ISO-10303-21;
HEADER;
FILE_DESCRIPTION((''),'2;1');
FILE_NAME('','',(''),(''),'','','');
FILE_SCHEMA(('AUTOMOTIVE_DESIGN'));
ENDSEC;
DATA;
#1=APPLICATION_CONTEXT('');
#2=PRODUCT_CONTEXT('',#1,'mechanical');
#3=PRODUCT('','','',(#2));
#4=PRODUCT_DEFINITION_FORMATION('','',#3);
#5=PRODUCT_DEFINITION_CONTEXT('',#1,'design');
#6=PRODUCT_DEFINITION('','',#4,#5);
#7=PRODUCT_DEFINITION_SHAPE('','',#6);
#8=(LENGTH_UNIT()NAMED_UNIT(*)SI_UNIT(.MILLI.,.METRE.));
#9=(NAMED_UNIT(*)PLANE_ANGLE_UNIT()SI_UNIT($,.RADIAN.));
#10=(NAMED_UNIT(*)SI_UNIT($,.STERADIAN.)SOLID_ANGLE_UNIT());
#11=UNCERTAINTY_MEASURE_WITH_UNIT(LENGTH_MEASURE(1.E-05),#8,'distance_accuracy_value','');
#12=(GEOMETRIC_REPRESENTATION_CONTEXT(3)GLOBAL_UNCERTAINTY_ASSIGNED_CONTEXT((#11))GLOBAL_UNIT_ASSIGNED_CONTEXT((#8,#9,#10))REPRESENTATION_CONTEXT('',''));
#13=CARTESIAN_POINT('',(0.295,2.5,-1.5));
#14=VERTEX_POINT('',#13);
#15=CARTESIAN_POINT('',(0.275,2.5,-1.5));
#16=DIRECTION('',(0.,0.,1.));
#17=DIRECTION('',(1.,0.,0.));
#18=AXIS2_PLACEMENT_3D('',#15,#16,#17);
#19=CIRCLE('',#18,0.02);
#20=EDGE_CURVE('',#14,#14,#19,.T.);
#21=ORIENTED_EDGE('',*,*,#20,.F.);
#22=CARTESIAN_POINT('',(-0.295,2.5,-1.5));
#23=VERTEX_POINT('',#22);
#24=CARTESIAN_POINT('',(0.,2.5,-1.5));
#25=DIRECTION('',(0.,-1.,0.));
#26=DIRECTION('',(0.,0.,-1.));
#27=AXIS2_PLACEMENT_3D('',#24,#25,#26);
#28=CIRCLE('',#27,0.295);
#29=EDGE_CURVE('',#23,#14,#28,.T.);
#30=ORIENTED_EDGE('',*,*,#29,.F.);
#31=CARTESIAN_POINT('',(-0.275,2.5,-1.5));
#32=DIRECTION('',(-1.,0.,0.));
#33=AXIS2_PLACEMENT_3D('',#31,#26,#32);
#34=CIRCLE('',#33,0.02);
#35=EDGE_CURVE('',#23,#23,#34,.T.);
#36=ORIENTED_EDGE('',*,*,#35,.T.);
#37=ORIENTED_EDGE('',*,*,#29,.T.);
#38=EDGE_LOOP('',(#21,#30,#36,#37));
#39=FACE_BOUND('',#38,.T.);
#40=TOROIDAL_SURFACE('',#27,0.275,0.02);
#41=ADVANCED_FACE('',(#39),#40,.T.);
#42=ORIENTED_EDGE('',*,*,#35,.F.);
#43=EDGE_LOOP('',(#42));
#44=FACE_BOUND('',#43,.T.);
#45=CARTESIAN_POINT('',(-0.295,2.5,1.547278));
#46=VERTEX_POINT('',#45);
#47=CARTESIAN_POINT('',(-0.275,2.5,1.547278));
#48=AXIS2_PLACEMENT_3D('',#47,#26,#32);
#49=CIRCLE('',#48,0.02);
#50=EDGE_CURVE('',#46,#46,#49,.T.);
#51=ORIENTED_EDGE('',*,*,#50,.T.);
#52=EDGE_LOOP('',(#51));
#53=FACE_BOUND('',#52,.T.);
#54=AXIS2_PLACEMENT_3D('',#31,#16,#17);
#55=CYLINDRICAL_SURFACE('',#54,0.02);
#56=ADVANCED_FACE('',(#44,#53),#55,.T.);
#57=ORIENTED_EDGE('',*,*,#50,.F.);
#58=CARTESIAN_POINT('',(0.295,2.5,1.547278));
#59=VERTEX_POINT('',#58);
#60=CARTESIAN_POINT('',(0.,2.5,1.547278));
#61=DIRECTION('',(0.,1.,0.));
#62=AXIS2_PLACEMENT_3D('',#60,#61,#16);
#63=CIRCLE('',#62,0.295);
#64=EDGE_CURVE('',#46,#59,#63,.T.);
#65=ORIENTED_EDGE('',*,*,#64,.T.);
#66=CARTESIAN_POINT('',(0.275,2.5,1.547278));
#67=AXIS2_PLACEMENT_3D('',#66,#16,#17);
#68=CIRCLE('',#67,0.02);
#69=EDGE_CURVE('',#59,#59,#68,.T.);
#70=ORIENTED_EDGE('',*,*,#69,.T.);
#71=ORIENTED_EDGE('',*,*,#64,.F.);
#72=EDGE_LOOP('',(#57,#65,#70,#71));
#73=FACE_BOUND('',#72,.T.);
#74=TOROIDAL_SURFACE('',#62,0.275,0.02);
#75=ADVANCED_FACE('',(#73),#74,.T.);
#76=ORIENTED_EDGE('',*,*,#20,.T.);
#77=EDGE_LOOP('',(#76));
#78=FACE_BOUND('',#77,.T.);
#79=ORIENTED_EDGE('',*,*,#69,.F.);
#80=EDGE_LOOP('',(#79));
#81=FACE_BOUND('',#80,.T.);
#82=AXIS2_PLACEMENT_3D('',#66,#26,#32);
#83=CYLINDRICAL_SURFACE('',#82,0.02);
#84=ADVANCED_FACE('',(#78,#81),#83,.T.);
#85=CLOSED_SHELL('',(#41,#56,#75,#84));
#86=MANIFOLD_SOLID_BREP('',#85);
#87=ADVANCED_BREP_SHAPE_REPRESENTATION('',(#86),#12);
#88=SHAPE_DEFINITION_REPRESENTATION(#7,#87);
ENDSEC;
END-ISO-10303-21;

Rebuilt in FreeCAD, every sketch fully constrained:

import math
import FreeCAD as App
import Part
import Sketcher
Q = App.Units.Quantity

doc = App.newDocument("Part")
body = doc.addObject("PartDesign::Body", "Body")

sketch1 = body.newObject("Sketcher::SketchObject", "Sketch")
sketch1.Placement = App.Placement(App.Vector(0.270906, 2.5, -1.547278), App.Rotation(App.Vector(-0.985110954, 0, 0.171919771), App.Vector(0, -0.999999999, 0), App.Vector(0.171919771, 0, 0.985110954), "ZXY"))
sketch1.addGeometry(Part.Circle(App.Vector(0, 0, 0), App.Vector(0, 0, 1), 0.02), False)
sketch1.addConstraint([
    Sketcher.Constraint("Coincident", 0, 3, -1, 1),
    Sketcher.Constraint("Diameter", 0, Q("0.04 mm")),
])

sketch2 = body.newObject("Sketcher::SketchObject", "Sketch001")
sketch2.AttachmentSupport = (doc.getObject("XZ_Plane"), [""])
sketch2.MapMode = "FlatFace"
sketch2.AttachmentOffset = App.Placement(App.Vector(0, 0, -2.5), App.Rotation())
sketch2.addGeometry([
    Part.LineSegment(App.Vector(-0.275, 1.547278, 0), App.Vector(-0.275, -1.5, 0)),
    Part.ArcOfCircle(Part.Circle(App.Vector(0, -1.5, 0), App.Vector(0, 0, 1), 0.275), math.radians(180), math.radians(360)),
    Part.LineSegment(App.Vector(0.275, -1.5, 0), App.Vector(0.275, 1.547278, 0)),
    Part.ArcOfCircle(Part.Circle(App.Vector(0, 1.547278, 0), App.Vector(0, 0, 1), 0.275), math.radians(0), math.radians(180)),
], False)
sketch2.addConstraint([
    Sketcher.Constraint("Tangent", 0, 2, 1, 1),
    Sketcher.Constraint("Tangent", 1, 2, 2, 1),
    Sketcher.Constraint("Tangent", 2, 2, 3, 1),
    Sketcher.Constraint("Tangent", 3, 2, 0, 1),
    Sketcher.Constraint("Vertical", 0),
    Sketcher.Constraint("Vertical", 2),
    Sketcher.Constraint("PointOnObject", 1, 3, -2),
    Sketcher.Constraint("Radius", 1, Q("0.275 mm")),
    Sketcher.Constraint("DistanceY", 1, 3, -1, 1, Q("1.5 mm")),
    Sketcher.Constraint("DistanceY", 0, 2, 0, 1, Q("3.047278 mm")),
])
doc.recompute()

additivepipe = body.newObject("PartDesign::AdditivePipe", "AdditivePipe")
additivepipe.Profile = sketch1
additivepipe.Spine = (sketch2, ["Edge1", "Edge2", "Edge3", "Edge4"])

doc.recompute()
